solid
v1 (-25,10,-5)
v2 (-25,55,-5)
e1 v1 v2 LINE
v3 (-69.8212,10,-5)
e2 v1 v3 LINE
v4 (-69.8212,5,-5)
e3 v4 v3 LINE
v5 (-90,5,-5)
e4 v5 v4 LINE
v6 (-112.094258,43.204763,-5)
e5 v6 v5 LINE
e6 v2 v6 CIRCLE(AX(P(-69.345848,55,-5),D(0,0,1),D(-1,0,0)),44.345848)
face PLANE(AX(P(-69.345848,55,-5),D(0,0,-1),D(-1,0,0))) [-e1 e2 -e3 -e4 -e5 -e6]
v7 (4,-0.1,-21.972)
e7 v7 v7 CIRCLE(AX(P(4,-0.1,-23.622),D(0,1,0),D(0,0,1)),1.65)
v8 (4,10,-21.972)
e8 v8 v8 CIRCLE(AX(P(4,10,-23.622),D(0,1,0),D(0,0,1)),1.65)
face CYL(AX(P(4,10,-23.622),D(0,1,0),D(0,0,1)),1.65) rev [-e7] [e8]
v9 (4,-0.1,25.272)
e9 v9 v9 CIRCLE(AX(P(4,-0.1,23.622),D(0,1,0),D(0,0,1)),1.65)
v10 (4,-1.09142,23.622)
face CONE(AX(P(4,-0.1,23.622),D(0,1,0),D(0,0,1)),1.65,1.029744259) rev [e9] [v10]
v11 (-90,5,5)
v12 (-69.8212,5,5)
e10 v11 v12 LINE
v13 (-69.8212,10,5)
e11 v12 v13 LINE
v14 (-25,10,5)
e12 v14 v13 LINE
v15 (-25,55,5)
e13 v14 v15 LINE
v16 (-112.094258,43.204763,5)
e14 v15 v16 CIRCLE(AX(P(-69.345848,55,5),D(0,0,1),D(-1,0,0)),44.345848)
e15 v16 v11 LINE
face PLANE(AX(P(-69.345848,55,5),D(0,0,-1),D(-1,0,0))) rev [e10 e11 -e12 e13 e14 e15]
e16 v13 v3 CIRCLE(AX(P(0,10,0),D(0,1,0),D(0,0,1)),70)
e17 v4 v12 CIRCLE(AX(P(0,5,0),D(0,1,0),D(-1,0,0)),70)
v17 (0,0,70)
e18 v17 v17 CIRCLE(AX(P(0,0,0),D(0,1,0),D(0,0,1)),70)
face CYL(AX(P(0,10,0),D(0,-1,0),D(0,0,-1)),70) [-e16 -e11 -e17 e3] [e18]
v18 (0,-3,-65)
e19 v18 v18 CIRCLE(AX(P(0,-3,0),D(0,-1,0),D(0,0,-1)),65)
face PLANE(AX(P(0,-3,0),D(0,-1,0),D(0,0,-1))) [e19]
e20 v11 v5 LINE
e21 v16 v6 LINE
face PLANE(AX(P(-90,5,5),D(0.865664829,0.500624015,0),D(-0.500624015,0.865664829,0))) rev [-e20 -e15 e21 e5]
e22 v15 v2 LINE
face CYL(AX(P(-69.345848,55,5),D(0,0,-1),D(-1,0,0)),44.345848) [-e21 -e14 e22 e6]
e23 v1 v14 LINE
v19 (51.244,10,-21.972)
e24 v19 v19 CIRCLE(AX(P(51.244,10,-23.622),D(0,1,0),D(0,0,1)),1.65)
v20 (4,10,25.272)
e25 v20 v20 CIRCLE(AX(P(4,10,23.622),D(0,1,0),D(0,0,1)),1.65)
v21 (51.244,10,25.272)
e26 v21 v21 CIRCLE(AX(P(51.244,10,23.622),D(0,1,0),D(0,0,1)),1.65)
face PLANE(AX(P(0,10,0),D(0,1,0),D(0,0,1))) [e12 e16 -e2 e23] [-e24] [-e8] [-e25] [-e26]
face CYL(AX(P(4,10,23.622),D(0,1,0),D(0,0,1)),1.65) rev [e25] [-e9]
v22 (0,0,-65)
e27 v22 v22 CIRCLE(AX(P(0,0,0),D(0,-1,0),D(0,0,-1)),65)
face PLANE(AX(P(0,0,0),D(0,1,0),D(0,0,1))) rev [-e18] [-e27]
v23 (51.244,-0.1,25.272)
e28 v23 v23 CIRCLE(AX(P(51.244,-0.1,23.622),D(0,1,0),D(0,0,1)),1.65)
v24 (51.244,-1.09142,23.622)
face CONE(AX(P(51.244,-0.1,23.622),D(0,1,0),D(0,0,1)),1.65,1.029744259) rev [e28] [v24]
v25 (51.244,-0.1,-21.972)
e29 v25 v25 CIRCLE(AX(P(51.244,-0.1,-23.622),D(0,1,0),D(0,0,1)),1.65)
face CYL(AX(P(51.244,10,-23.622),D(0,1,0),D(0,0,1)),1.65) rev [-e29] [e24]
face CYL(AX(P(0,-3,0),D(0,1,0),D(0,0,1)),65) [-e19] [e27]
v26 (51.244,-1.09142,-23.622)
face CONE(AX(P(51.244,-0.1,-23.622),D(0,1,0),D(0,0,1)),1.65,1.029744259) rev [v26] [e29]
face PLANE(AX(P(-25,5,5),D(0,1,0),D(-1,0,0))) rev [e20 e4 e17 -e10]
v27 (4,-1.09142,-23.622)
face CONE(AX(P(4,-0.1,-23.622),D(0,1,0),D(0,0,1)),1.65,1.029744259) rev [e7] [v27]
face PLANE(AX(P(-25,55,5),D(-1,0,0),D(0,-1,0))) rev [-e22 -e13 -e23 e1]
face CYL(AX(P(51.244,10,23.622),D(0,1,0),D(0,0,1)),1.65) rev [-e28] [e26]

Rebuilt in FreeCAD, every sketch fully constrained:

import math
import FreeCAD as App
import Part
import Sketcher
from FreeCAD import Vector
Q = App.Units.Quantity

doc = App.newDocument("Part")
body = doc.addObject("PartDesign::Body", "Body")

sketch1 = body.newObject("Sketcher::SketchObject", "Sketch")
sketch1.AttachmentSupport = (doc.getObject("XZ_Plane"), [""])
sketch1.MapMode = "FlatFace"
sketch1.addGeometry(Part.Circle(Vector(0, 0, 0), Vector(0, 0, 1), 70), False)
sketch1.addConstraint(Sketcher.Constraint("Coincident", 0, 3, -1, 1))
sketch1.addConstraint(Sketcher.Constraint("Diameter", 0, Q("140 mm")))
pad1 = body.newObject("PartDesign::Pad", "Pad")
pad1.Profile = sketch1
pad1.Length = 10
pad1.Reversed = True

sketch2 = body.newObject("Sketcher::SketchObject", "Sketch001")
sketch2.AttachmentSupport = (doc.getObject("XZ_Plane"), [""])
sketch2.MapMode = "FlatFace"
sketch2.addGeometry(Part.Circle(Vector(0, 0, 0), Vector(0, 0, 1), 65), False)
sketch2.addConstraint(Sketcher.Constraint("Coincident", 0, 3, -1, 1))
sketch2.addConstraint(Sketcher.Constraint("Diameter", 0, Q("130 mm")))
pad2 = body.newObject("PartDesign::Pad", "Pad001")
pad2.Profile = sketch2
pad2.Length = 3

sketch3 = body.newObject("Sketcher::SketchObject", "Sketch002")
sketch3.AttachmentSupport = (doc.getObject("XY_Plane"), [""])
sketch3.MapMode = "FlatFace"
sketch3.addGeometry(Part.LineSegment(Vector(-25, 5, 0), Vector(-25, 55, 0)), False)
sketch3.addGeometry(Part.ArcOfCircle(Part.Circle(Vector(-69.345848, 55, 0), Vector(0, 0, 1), 44.345848), math.radians(0), math.radians(195.425365)), False)
sketch3.addGeometry(Part.LineSegment(Vector(-112.094258, 43.204763, 0), Vector(-90, 5, 0)), False)
sketch3.addGeometry(Part.LineSegment(Vector(-90, 5, 0), Vector(-25, 5, 0)), False)
sketch3.addConstraint(Sketcher.Constraint("Tangent", 0, 2, 1, 1))
sketch3.addConstraint(Sketcher.Constraint("Coincident", 1, 2, 2, 1))
sketch3.addConstraint(Sketcher.Constraint("Coincident", 2, 2, 3, 1))
sketch3.addConstraint(Sketcher.Constraint("Coincident", 3, 2, 0, 1))
sketch3.addConstraint(Sketcher.Constraint("Vertical", 0))
sketch3.addConstraint(Sketcher.Constraint("Horizontal", 3))
sketch3.addConstraint(Sketcher.Constraint("DistanceX", 3, 1, 3, 2, Q("65 mm")))
sketch3.addConstraint(Sketcher.Constraint("DistanceY", 0, 1, 0, 2, Q("50 mm")))
sketch3.addConstraint(Sketcher.Constraint("DistanceY", -1, 1, 1, 3, Q("55 mm")))
sketch3.addConstraint(Sketcher.Constraint("DistanceX", 0, 2, -1, 1, Q("25 mm")))
sketch3.addConstraint(Sketcher.Constraint("Radius", 1, Q("44.345848 mm")))
sketch3.addConstraint(Sketcher.Constraint("DistanceX", 1, 2, 1, 3, Q("42.74841 mm")))
pad3 = body.newObject("PartDesign::Pad", "Pad002")
pad3.Profile = sketch3
pad3.Length = 10
pad3.Midplane = True

sketch4 = body.newObject("Sketcher::SketchObject", "Sketch003")
sketch4.AttachmentSupport = (doc.getObject("XZ_Plane"), [""])
sketch4.MapMode = "FlatFace"
sketch4.AttachmentOffset = App.Placement(Vector(0, 0, -10), App.Rotation())
sketch4.addGeometry(Part.Circle(Vector(4, -23.622, 0), Vector(0, 0, 1), 1.65), False)
sketch4.addGeometry(Part.Circle(Vector(51.244, -23.622, 0), Vector(0, 0, 1), 1.65), False)
sketch4.addGeometry(Part.Circle(Vector(51.244, 23.622, 0), Vector(0, 0, 1), 1.65), False)
sketch4.addGeometry(Part.Circle(Vector(4, 23.622, 0), Vector(0, 0, 1), 1.65), False)
sketch4.addConstraint(Sketcher.Constraint("Equal", 0, 1))
sketch4.addConstraint(Sketcher.Constraint("Equal", 1, 2))
sketch4.addConstraint(Sketcher.Constraint("Equal", 2, 3))
sketch4.addConstraint(Sketcher.Constraint("Symmetric", 1, 3, 2, 3, -1))
sketch4.addConstraint(Sketcher.Constraint("Symmetric", 0, 3, 3, 3, -1))
sketch4.addConstraint(Sketcher.Constraint("Horizontal", 0, 3, 1, 3))
sketch4.addConstraint(Sketcher.Constraint("Diameter", 0, Q("3.3 mm")))
sketch4.addConstraint(Sketcher.Constraint("DistanceX", -1, 1, 0, 3, Q("4 mm")))
sketch4.addConstraint(Sketcher.Constraint("DistanceY", 0, 3, -1, 1, Q("23.622 mm")))
sketch4.addConstraint(Sketcher.Constraint("DistanceX", -1, 1, 1, 3, Q("51.244 mm")))
doc.recompute()
hole = body.newObject("PartDesign::Hole", "Hole")
hole.Profile = sketch4
hole.ThreadType = "None"
hole.Diameter = 3.3
hole.DepthType = "Dimension"
hole.Depth = 10.1
hole.DrillPoint = "Angled"
hole.DrillPointAngle = 118
hole.Reversed = True

doc.recompute()
